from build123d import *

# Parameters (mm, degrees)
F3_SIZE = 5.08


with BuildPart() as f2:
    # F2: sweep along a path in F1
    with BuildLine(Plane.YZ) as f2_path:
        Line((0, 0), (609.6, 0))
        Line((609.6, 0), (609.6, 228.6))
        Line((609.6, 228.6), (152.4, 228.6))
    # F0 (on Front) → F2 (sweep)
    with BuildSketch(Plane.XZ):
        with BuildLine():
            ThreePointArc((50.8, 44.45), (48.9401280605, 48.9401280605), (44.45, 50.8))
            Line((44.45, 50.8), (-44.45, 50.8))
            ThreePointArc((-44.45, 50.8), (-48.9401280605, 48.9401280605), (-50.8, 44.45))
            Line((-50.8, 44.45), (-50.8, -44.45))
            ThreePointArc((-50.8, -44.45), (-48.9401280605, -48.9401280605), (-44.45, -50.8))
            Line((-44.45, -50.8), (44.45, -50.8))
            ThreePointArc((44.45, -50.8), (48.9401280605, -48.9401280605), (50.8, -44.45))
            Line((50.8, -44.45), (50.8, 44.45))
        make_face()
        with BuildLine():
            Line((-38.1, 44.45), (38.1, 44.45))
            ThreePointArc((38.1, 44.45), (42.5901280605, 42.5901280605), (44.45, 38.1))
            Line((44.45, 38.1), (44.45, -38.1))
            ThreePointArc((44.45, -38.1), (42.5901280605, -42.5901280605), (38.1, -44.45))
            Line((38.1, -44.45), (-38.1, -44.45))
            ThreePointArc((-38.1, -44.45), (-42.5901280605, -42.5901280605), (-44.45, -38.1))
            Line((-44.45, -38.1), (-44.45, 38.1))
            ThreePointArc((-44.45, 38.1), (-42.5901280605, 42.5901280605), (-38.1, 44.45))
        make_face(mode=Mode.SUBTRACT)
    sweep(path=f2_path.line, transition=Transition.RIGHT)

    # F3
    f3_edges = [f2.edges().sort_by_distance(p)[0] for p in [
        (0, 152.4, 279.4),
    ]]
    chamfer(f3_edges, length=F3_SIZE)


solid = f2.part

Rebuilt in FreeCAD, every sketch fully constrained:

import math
import FreeCAD as App
import Part
import Sketcher

V = App.Vector
Q = App.Units.Quantity


def edges_at(feature, points):
    """Names of the edges that pass closest to the given points."""
    edges = feature.Shape.Edges
    near = lambda p: min(range(len(edges)), key=lambda i: edges[i].distToShape(Part.Vertex(*p))[0])
    return sorted({f"Edge{near(p) + 1}" for p in points})

doc = App.newDocument("Part")
params = doc.addObject("Spreadsheet::Sheet", "Params")
for row, (alias, value) in enumerate([
    ("sketch1_width", "3 in"),
    ("sketch1_radius", "0.25 in"),
    ("sketch2_width", "24 in"),
    ("sketch2_width2", "18 in"),
    ("sketch2_height", "9 in"),
    ("chamfer_size", "0.2 in"),
], start=1):
    params.set(f"A{row}", alias)
    params.set(f"B{row}", "=" + value)
    params.setAlias(f"B{row}", alias)

body = doc.addObject("PartDesign::Body", "Body")

# Sketch on XZ plane
sketch1 = body.newObject("Sketcher::SketchObject", "Sketch")
sketch1.AttachmentSupport = (doc.getObject("XZ_Plane"), [""])
sketch1.MapMode = "FlatFace"
sketch1.addGeometry([
    Part.ArcOfCircle(Part.Circle(V(44.45, 44.45, 0), V(0, 0, 1), 6.35), math.radians(0), math.radians(90)),  # 0
    Part.LineSegment(V(44.45, 50.8, 0), V(-44.45, 50.8, 0)),  # 1
    Part.ArcOfCircle(Part.Circle(V(-44.45, 44.45, 0), V(0, 0, 1), 6.35), math.radians(90), math.radians(180)),  # 2
    Part.LineSegment(V(-50.8, 44.45, 0), V(-50.8, -44.45, 0)),  # 3
    Part.ArcOfCircle(Part.Circle(V(-44.45, -44.45, 0), V(0, 0, 1), 6.35), math.radians(180), math.radians(270)),  # 4
    Part.LineSegment(V(-44.45, -50.8, 0), V(44.45, -50.8, 0)),  # 5
    Part.ArcOfCircle(Part.Circle(V(44.45, -44.45, 0), V(0, 0, 1), 6.35), math.radians(-90), math.radians(0)),  # 6
    Part.LineSegment(V(50.8, -44.45, 0), V(50.8, 44.45, 0)),  # 7
    Part.ArcOfCircle(Part.Circle(V(-38.1, 38.1, 0), V(0, 0, 1), 6.35), math.radians(90), math.radians(180)),  # 8
    Part.LineSegment(V(-38.1, 44.45, 0), V(38.1, 44.45, 0)),  # 9
    Part.ArcOfCircle(Part.Circle(V(38.1, 38.1, 0), V(0, 0, 1), 6.35), math.radians(0), math.radians(90)),  # 10
    Part.LineSegment(V(44.45, 38.1, 0), V(44.45, -38.1, 0)),  # 11
    Part.ArcOfCircle(Part.Circle(V(38.1, -38.1, 0), V(0, 0, 1), 6.35), math.radians(-90), math.radians(0)),  # 12
    Part.LineSegment(V(38.1, -44.45, 0), V(-38.1, -44.45, 0)),  # 13
    Part.ArcOfCircle(Part.Circle(V(-38.1, -38.1, 0), V(0, 0, 1), 6.35), math.radians(180), math.radians(270)),  # 14
    Part.LineSegment(V(-44.45, -38.1, 0), V(-44.45, 38.1, 0)),  # 15
], False)
sketch1.addConstraint([
    Sketcher.Constraint("Tangent", 0, 2, 1, 1),
    Sketcher.Constraint("Tangent", 1, 2, 2, 1),
    Sketcher.Constraint("Tangent", 2, 2, 3, 1),
    Sketcher.Constraint("Tangent", 3, 2, 4, 1),
    Sketcher.Constraint("Tangent", 4, 2, 5, 1),
    Sketcher.Constraint("Tangent", 5, 2, 6, 1),
    Sketcher.Constraint("Tangent", 6, 2, 7, 1),
    Sketcher.Constraint("Tangent", 7, 2, 0, 1),
    Sketcher.Constraint("Tangent", 8, 1, 9, 1),
    Sketcher.Constraint("Tangent", 9, 2, 10, 2),
    Sketcher.Constraint("Tangent", 10, 1, 11, 1),
    Sketcher.Constraint("Tangent", 11, 2, 12, 2),
    Sketcher.Constraint("Tangent", 12, 1, 13, 1),
    Sketcher.Constraint("Tangent", 13, 2, 14, 2),
    Sketcher.Constraint("Tangent", 14, 1, 15, 1),
    Sketcher.Constraint("Tangent", 15, 2, 8, 2),
    Sketcher.Constraint("Horizontal", 1),
    Sketcher.Constraint("Vertical", 3),
    Sketcher.Constraint("Horizontal", 5),
    Sketcher.Constraint("Vertical", 7),
    Sketcher.Constraint("Horizontal", 9),
    Sketcher.Constraint("Vertical", 11),
    Sketcher.Constraint("Horizontal", 13),
    Sketcher.Constraint("Vertical", 15),
    Sketcher.Constraint("Equal", 0, 2),
    Sketcher.Constraint("Equal", 2, 4),
    Sketcher.Constraint("Equal", 4, 6),
    Sketcher.Constraint("Equal", 6, 8),
    Sketcher.Constraint("Equal", 8, 10),
    Sketcher.Constraint("Equal", 10, 12),
    Sketcher.Constraint("Equal", 12, 14),
    Sketcher.Constraint("Symmetric", 0, 3, 4, 3, -1, 1),
    Sketcher.Constraint("Symmetric", 8, 3, 12, 3, -1, 1),
    Sketcher.Constraint("Horizontal", 7, 2, 8, 1),
    Sketcher.Constraint("Vertical", 5, 2, 10, 1),
    Sketcher.Constraint("Equal", 5, 3),
    Sketcher.Constraint("DistanceX", 9, 1, 9, 2, Q("3 in")),
    Sketcher.Constraint("Radius", 0, Q("0.25 in")),
])
sketch1.setExpression("Constraints[36]", "Params.sketch1_width")
sketch1.setExpression("Constraints[37]", "Params.sketch1_radius")

# Sketch on YZ plane
sketch2 = body.newObject("Sketcher::SketchObject", "Sketch001")
sketch2.AttachmentSupport = (doc.getObject("YZ_Plane"), [""])
sketch2.MapMode = "FlatFace"
sketch2.addGeometry([
    Part.LineSegment(V(0, 0, 0), V(609.6, 0, 0)),
    Part.LineSegment(V(609.6, 0, 0), V(609.6, 228.6, 0)),
    Part.LineSegment(V(609.6, 228.6, 0), V(152.4, 228.6, 0)),
], False)
sketch2.addConstraint([
    Sketcher.Constraint("Coincident", 0, 2, 1, 1),
    Sketcher.Constraint("Coincident", 1, 2, 2, 1),
    Sketcher.Constraint("Horizontal", 0),
    Sketcher.Constraint("Vertical", 1),
    Sketcher.Constraint("Horizontal", 2),
    Sketcher.Constraint("Coincident", 0, 1, -1, 1),
    Sketcher.Constraint("DistanceX", 0, 1, 0, 2, Q("24 in")),
    Sketcher.Constraint("DistanceX", 2, 2, 2, 1, Q("18 in")),
    Sketcher.Constraint("DistanceY", 1, 1, 1, 2, Q("9 in")),
])
sketch2.setExpression("Constraints[6]", "Params.sketch2_width")
sketch2.setExpression("Constraints[7]", "Params.sketch2_width2")
sketch2.setExpression("Constraints[8]", "Params.sketch2_height")
doc.recompute()

additivepipe = body.newObject("PartDesign::AdditivePipe", "AdditivePipe")
additivepipe.Profile = sketch1
additivepipe.Spine = (sketch2, ["Edge1", "Edge2", "Edge3"])
additivepipe.Transition = "Right corner"
doc.recompute()

chamfer = body.newObject("PartDesign::Chamfer", "Chamfer")
chamfer.Base = (additivepipe, edges_at(additivepipe, [(0, 152.4, 279.4)]))
chamfer.setExpression("Size", "Params.chamfer_size")

doc.recompute()
